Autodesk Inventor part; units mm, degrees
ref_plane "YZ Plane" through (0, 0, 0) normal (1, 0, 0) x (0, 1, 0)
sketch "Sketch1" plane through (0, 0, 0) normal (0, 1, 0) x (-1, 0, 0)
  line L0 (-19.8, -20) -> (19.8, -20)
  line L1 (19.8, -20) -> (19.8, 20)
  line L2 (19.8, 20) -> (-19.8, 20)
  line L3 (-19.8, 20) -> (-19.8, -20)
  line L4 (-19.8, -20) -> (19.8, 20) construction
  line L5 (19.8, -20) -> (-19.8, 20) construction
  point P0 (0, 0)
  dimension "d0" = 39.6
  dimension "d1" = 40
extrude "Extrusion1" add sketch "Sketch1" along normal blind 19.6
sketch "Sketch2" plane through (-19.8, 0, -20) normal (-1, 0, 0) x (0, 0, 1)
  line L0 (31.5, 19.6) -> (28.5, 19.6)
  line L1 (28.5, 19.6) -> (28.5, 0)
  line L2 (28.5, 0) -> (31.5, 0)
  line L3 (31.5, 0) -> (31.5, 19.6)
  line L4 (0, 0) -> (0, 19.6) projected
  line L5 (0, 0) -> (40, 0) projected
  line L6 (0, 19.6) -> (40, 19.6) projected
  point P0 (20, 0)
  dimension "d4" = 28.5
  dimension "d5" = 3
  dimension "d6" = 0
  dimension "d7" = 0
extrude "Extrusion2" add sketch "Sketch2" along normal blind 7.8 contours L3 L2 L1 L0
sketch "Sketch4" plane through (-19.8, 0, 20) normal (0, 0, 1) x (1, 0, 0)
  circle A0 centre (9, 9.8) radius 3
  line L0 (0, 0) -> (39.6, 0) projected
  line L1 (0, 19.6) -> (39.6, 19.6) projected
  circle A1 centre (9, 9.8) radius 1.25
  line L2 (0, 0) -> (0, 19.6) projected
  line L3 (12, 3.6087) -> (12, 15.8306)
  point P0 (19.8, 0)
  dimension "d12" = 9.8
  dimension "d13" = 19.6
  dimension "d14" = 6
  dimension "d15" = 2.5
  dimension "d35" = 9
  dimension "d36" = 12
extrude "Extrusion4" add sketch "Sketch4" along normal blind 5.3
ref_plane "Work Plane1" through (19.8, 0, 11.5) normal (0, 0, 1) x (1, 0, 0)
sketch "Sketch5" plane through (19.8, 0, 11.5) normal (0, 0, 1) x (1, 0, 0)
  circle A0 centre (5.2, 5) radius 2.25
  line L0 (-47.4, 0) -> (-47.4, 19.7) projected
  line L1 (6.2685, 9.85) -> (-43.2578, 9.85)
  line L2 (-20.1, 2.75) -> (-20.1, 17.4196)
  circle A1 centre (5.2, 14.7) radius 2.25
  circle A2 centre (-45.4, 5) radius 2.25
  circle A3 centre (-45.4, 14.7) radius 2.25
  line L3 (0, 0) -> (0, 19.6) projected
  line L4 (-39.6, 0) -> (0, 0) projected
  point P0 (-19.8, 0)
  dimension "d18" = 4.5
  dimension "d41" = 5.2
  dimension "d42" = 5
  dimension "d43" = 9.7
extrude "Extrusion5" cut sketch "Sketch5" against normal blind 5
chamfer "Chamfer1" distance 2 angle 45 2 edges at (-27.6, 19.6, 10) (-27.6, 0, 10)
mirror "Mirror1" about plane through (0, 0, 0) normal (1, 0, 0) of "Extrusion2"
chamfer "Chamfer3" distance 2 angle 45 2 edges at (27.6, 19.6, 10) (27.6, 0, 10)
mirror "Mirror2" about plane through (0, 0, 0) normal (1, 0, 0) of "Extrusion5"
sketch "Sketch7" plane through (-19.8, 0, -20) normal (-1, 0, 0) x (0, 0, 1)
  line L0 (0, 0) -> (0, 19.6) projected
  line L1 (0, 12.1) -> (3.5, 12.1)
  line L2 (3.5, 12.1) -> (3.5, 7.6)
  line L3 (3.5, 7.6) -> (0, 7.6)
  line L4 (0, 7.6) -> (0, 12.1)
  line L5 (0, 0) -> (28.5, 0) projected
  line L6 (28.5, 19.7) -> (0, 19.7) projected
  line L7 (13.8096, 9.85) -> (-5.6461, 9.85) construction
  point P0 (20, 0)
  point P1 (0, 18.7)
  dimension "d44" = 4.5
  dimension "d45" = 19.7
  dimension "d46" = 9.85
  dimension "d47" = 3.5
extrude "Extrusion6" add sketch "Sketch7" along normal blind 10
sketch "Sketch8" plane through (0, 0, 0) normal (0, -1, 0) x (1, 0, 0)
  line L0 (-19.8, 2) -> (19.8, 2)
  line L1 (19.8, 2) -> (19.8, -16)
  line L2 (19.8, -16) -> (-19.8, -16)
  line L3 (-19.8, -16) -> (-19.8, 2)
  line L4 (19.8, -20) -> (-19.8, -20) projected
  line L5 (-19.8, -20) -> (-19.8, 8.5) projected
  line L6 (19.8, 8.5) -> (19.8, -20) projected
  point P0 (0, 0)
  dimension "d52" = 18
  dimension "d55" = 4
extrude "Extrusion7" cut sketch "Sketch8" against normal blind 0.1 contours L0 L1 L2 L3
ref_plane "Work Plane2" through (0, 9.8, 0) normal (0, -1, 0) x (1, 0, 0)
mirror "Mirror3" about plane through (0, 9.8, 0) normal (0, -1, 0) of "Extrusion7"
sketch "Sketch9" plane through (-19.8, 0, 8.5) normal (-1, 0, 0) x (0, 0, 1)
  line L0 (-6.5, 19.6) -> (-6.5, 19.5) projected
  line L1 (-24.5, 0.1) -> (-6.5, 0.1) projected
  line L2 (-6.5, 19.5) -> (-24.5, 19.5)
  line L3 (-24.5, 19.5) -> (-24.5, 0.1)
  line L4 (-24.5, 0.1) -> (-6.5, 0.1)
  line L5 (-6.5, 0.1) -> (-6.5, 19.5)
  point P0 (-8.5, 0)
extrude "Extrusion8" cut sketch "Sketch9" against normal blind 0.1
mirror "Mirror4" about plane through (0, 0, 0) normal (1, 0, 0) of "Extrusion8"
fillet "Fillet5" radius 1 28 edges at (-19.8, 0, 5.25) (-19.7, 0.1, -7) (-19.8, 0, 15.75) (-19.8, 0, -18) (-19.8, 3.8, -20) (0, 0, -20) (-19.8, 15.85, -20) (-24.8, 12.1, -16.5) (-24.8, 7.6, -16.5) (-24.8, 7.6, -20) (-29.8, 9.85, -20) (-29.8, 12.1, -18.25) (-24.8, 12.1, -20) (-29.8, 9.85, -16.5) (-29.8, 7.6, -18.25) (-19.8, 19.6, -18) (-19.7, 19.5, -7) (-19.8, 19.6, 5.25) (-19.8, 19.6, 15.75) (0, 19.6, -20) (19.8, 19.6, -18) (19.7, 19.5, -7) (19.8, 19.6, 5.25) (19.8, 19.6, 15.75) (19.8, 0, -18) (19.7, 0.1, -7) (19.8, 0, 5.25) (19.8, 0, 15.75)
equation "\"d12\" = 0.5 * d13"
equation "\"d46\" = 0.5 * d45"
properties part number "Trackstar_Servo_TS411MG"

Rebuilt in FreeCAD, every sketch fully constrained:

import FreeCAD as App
import Part
import Sketcher
from FreeCAD import Vector
Q = App.Units.Quantity


def edges_at(feature, points):
    """Names of the edges that pass closest to the given points."""
    edges = feature.Shape.Edges
    near = lambda p: min(range(len(edges)), key=lambda i: edges[i].distToShape(Part.Vertex(*p))[0])
    return sorted({f"Edge{near(p) + 1}" for p in points})

doc = App.newDocument("Part")
params = doc.addObject("Spreadsheet::Sheet", "Params")
for row, (alias, value) in enumerate([
    ("sketch1_height", "40 mm"),
    ("sketch1_width", "39.6 mm"),
    ("pad1_length", "19.6 mm"),
    ("sketch2_height", "3 mm"),
    ("sketch2_width", "19.6 mm"),
    ("pad2_length", "7.8 mm"),
    ("sketch3_diameter", "6 mm"),
    ("sketch3_diameter2", "2.5 mm"),
    ("pad3_length", "5.3 mm"),
    ("sketch4_diameter", "4.5 mm"),
    ("pocket1_length", "5 mm"),
    ("chamfer_size", "2 mm"),
    ("chamfer2_size", "2 mm"),
    ("sketch5_width", "4.5 mm"),
    ("sketch5_height", "3.5 mm"),
    ("pad4_length", "10 mm"),
    ("sketch6_height", "18 mm"),
    ("sketch6_width", "39.6 mm"),
    ("pocket2_length", "0.1 mm"),
    ("sketch7_height", "18 mm"),
    ("sketch7_width", "19.4 mm"),
    ("pocket3_length", "0.1 mm"),
    ("fillet_radius", "1 mm"),
], start=1):
    params.set(f"A{row}", alias)
    params.set(f"B{row}", "=" + value)
    params.setAlias(f"B{row}", alias)

body = doc.addObject("PartDesign::Body", "Body")

# Sketch on XZ plane
sketch1 = body.newObject("Sketcher::SketchObject", "Sketch")
sketch1.AttachmentSupport = (doc.getObject("XZ_Plane"), [""])
sketch1.MapMode = "FlatFace"
sketch1.addGeometry([
    Part.LineSegment(Vector(20, 20, 0), Vector(20, -20, 0)),
    Part.LineSegment(Vector(20, -20, 0), Vector(-20, -20, 0)),
    Part.LineSegment(Vector(-20, -20, 0), Vector(-20, 20, 0)),
    Part.LineSegment(Vector(-20, 20, 0), Vector(20, 20, 0)),
], False)
sketch1.addConstraint([
    Sketcher.Constraint("Coincident", 0, 2, 1, 1),
    Sketcher.Constraint("Coincident", 1, 2, 2, 1),
    Sketcher.Constraint("Coincident", 2, 2, 3, 1),
    Sketcher.Constraint("Coincident", 3, 2, 0, 1),
    Sketcher.Constraint("Vertical", 0),
    Sketcher.Constraint("Horizontal", 1),
    Sketcher.Constraint("Vertical", 2),
    Sketcher.Constraint("Horizontal", 3),
    Sketcher.Constraint("Symmetric", 0, 2, 2, 2, -1, 1),
    Sketcher.Constraint("DistanceY", 0, 2, 0, 1, Q("40 mm")),
    Sketcher.Constraint("DistanceX", 1, 2, 1, 1, Q("39.6 mm")),
])
sketch1.setExpression("Constraints[9]", "Params.sketch1_height")
sketch1.setExpression("Constraints[10]", "Params.sketch1_width")
pad1 = body.newObject("PartDesign::Pad", "Pad")
pad1.Profile = sketch1
pad1.setExpression("Length", "Params.pad1_length")
pad1.Reversed = True

# Sketch on YZ plane
sketch2 = body.newObject("Sketcher::SketchObject", "Sketch001")
sketch2.AttachmentSupport = (doc.getObject("YZ_Plane"), [""])
sketch2.MapMode = "FlatFace"
sketch2.AttachmentOffset = App.Placement(Vector(0, 0, -19.8), App.Rotation())
sketch2.addGeometry([
    Part.LineSegment(Vector(0, 11.5, 0), Vector(19.6, 11.5, 0)),
    Part.LineSegment(Vector(19.6, 11.5, 0), Vector(19.6, 8.5, 0)),
    Part.LineSegment(Vector(19.6, 8.5, 0), Vector(0, 8.5, 0)),
    Part.LineSegment(Vector(0, 8.5, 0), Vector(0, 11.5, 0)),
], False)
sketch2.addConstraint([
    Sketcher.Constraint("Coincident", 0, 2, 1, 1),
    Sketcher.Constraint("Coincident", 1, 2, 2, 1),
    Sketcher.Constraint("Coincident", 2, 2, 3, 1),
    Sketcher.Constraint("Coincident", 3, 2, 0, 1),
    Sketcher.Constraint("Horizontal", 0),
    Sketcher.Constraint("Vertical", 1),
    Sketcher.Constraint("Horizontal", 2),
    Sketcher.Constraint("Vertical", 3),
    Sketcher.Constraint("PointOnObject", 2, 2, -2),
    Sketcher.Constraint("DistanceY", 1, 2, 1, 1, Q("3 mm")),
    Sketcher.Constraint("DistanceX", 0, 1, 0, 2, Q("19.6 mm")),
    Sketcher.Constraint("DistanceY", -1, 1, 0, 2, Q("11.5 mm")),
])
sketch2.setExpression("Constraints[9]", "Params.sketch2_height")
sketch2.setExpression("Constraints[10]", "Params.sketch2_width")
pad2 = body.newObject("PartDesign::Pad", "Pad001")
pad2.Profile = sketch2
pad2.setExpression("Length", "Params.pad2_length")
pad2.Reversed = True

# Sketch on XY plane
sketch3 = body.newObject("Sketcher::SketchObject", "Sketch002")
sketch3.AttachmentSupport = (doc.getObject("XY_Plane"), [""])
sketch3.MapMode = "FlatFace"
sketch3.AttachmentOffset = App.Placement(Vector(0, 0, 20), App.Rotation())
sketch3.addGeometry([
    Part.Circle(Vector(-10.8, 9.8, 0), Vector(0, 0, 1), 3),
    Part.Circle(Vector(-10.8, 9.8, 0), Vector(0, 0, 1), 1.2),
], False)
sketch3.addConstraint([
    Sketcher.Constraint("Coincident", 1, 3, 0, 3),
    Sketcher.Constraint("Diameter", 0, Q("6 mm")),
    Sketcher.Constraint("Diameter", 1, Q("2.5 mm")),
    Sketcher.Constraint("DistanceY", -1, 1, 0, 3, Q("9.8 mm")),
    Sketcher.Constraint("DistanceX", 0, 3, -1, 1, Q("10.8 mm")),
])
sketch3.setExpression("Constraints[1]", "Params.sketch3_diameter")
sketch3.setExpression("Constraints[2]", "Params.sketch3_diameter2")
pad3 = body.newObject("PartDesign::Pad", "Pad002")
pad3.Profile = sketch3
pad3.setExpression("Length", "Params.pad3_length")

# Sketch on XY plane
sketch4 = body.newObject("Sketcher::SketchObject", "Sketch003")
sketch4.AttachmentSupport = (doc.getObject("XY_Plane"), [""])
sketch4.MapMode = "FlatFace"
sketch4.AttachmentOffset = App.Placement(Vector(0, 0, 11.5), App.Rotation())
sketch4.addGeometry([
    Part.Circle(Vector(25, 5, 0), Vector(0, 0, 1), 2.2),
    Part.Circle(Vector(-25.6, 5, 0), Vector(0, 0, 1), 2.2),
    Part.Circle(Vector(-25.6, 14.7, 0), Vector(0, 0, 1), 2.2),
    Part.Circle(Vector(25, 14.7, 0), Vector(0, 0, 1), 2.2),
], False)
sketch4.addConstraint([
    Sketcher.Constraint("Equal", 0, 1),
    Sketcher.Constraint("Equal", 1, 2),
    Sketcher.Constraint("Equal", 2, 3),
    Sketcher.Constraint("Horizontal", 0, 3, 1, 3),
    Sketcher.Constraint("Horizontal", 2, 3, 3, 3),
    Sketcher.Constraint("Vertical", 1, 3, 2, 3),
    Sketcher.Constraint("Vertical", 0, 3, 3, 3),
    Sketcher.Constraint("Diameter", 0, Q("4.5 mm")),
    Sketcher.Constraint("DistanceY", -1, 1, 0, 3, Q("5 mm")),
    Sketcher.Constraint("DistanceY", 1, 3, 2, 3, Q("9.7 mm")),
    Sketcher.Constraint("DistanceX", -1, 1, 0, 3, Q("25 mm")),
    Sketcher.Constraint("DistanceX", 1, 3, -1, 1, Q("25.6 mm")),
])
sketch4.setExpression("Constraints[7]", "Params.sketch4_diameter")
pocket1 = body.newObject("PartDesign::Pocket", "Pocket")
pocket1.Profile = sketch4
pocket1.setExpression("Length", "Params.pocket1_length")
doc.recompute()

chamfer = body.newObject("PartDesign::Chamfer", "Chamfer")
chamfer.Base = (pocket1, edges_at(pocket1, [(-27.6, 19.6, 10), (-27.6, 0, 10)]))
chamfer.setExpression("Size", "Params.chamfer_size")
doc.recompute()

mirrored = body.newObject("PartDesign::Mirrored", "Mirrored")
mirrored.Originals = [pad2]
mirrored.MirrorPlane = (doc.getObject("YZ_Plane"), [""])
body.Tip = mirrored
doc.recompute()

chamfer2 = body.newObject("PartDesign::Chamfer", "Chamfer001")
chamfer2.Base = (mirrored, edges_at(mirrored, [(27.6, 19.6, 10), (27.6, 0, 10)]))
chamfer2.setExpression("Size", "Params.chamfer2_size")
doc.recompute()

mirrored2 = body.newObject("PartDesign::Mirrored", "Mirrored001")
mirrored2.Originals = [pocket1]
mirrored2.MirrorPlane = (doc.getObject("YZ_Plane"), [""])
body.Tip = mirrored2

# Sketch on YZ plane
sketch5 = body.newObject("Sketcher::SketchObject", "Sketch004")
sketch5.AttachmentSupport = (doc.getObject("YZ_Plane"), [""])
sketch5.MapMode = "FlatFace"
sketch5.AttachmentOffset = App.Placement(Vector(0, 0, -19.8), App.Rotation())
sketch5.addGeometry([
    Part.LineSegment(Vector(12.1, -20, 0), Vector(7.6, -20, 0)),
    Part.LineSegment(Vector(7.6, -20, 0), Vector(7.6, -16.5, 0)),
    Part.LineSegment(Vector(7.6, -16.5, 0), Vector(12.1, -16.5, 0)),
    Part.LineSegment(Vector(12.1, -16.5, 0), Vector(12.1, -20, 0)),
], False)
sketch5.addConstraint([
    Sketcher.Constraint("Coincident", 0, 2, 1, 1),
    Sketcher.Constraint("Coincident", 1, 2, 2, 1),
    Sketcher.Constraint("Coincident", 2, 2, 3, 1),
    Sketcher.Constraint("Coincident", 3, 2, 0, 1),
    Sketcher.Constraint("Horizontal", 0),
    Sketcher.Constraint("Vertical", 1),
    Sketcher.Constraint("Horizontal", 2),
    Sketcher.Constraint("Vertical", 3),
    Sketcher.Constraint("DistanceX", 0, 2, 0, 1, Q("4.5 mm")),
    Sketcher.Constraint("DistanceY", 1, 1, 1, 2, Q("3.5 mm")),
    Sketcher.Constraint("DistanceY", 0, 2, -1, 1, Q("20 mm")),
    Sketcher.Constraint("DistanceX", -1, 1, 0, 2, Q("7.6 mm")),
])
sketch5.setExpression("Constraints[8]", "Params.sketch5_width")
sketch5.setExpression("Constraints[9]", "Params.sketch5_height")
pad4 = body.newObject("PartDesign::Pad", "Pad003")
pad4.Profile = sketch5
pad4.setExpression("Length", "Params.pad4_length")
pad4.Reversed = True

# Sketch on XZ plane
sketch6 = body.newObject("Sketcher::SketchObject", "Sketch005")
sketch6.AttachmentSupport = (doc.getObject("XZ_Plane"), [""])
sketch6.MapMode = "FlatFace"
sketch6.addGeometry([
    Part.LineSegment(Vector(20, 2, 0), Vector(-20, 2, 0)),
    Part.LineSegment(Vector(-20, 2, 0), Vector(-20, -16, 0)),
    Part.LineSegment(Vector(-20, -16, 0), Vector(20, -16, 0)),
    Part.LineSegment(Vector(20, -16, 0), Vector(20, 2, 0)),
], False)
sketch6.addConstraint([
    Sketcher.Constraint("Coincident", 0, 2, 1, 1),
    Sketcher.Constraint("Coincident", 1, 2, 2, 1),
    Sketcher.Constraint("Coincident", 2, 2, 3, 1),
    Sketcher.Constraint("Coincident", 3, 2, 0, 1),
    Sketcher.Constraint("Horizontal", 0),
    Sketcher.Constraint("Vertical", 1),
    Sketcher.Constraint("Horizontal", 2),
    Sketcher.Constraint("Vertical", 3),
    Sketcher.Constraint("DistanceY", 1, 2, 1, 1, Q("18 mm")),
    Sketcher.Constraint("DistanceX", 0, 2, 0, 1, Q("39.6 mm")),
    Sketcher.Constraint("DistanceY", -1, 1, 0, 2, Q("2 mm")),
    Sketcher.Constraint("DistanceX", 0, 2, -1, 1, Q("19.8 mm")),
])
sketch6.setExpression("Constraints[8]", "Params.sketch6_height")
sketch6.setExpression("Constraints[9]", "Params.sketch6_width")
pocket2 = body.newObject("PartDesign::Pocket", "Pocket001")
pocket2.Profile = sketch6
pocket2.setExpression("Length", "Params.pocket2_length")
doc.recompute()

datumplane = body.newObject("PartDesign::Plane", "DatumPlane")
datumplane.AttachmentSupport = (doc.getObject("XZ_Plane"), [""])
datumplane.MapMode = "FlatFace"
datumplane.AttachmentOffset = App.Placement(Vector(0, 0, -9.8), App.Rotation())
mirrored3 = body.newObject("PartDesign::Mirrored", "Mirrored002")
mirrored3.Originals = [pocket2]
mirrored3.MirrorPlane = (datumplane, [""])
body.Tip = mirrored3

# Sketch on YZ plane
sketch7 = body.newObject("Sketcher::SketchObject", "Sketch006")
sketch7.AttachmentSupport = (doc.getObject("YZ_Plane"), [""])
sketch7.MapMode = "FlatFace"
sketch7.AttachmentOffset = App.Placement(Vector(0, 0, -19.8), App.Rotation())
sketch7.addGeometry([
    Part.LineSegment(Vector(20, -16, 0), Vector(0, -16, 0)),
    Part.LineSegment(Vector(0, -16, 0), Vector(0, 2, 0)),
    Part.LineSegment(Vector(0, 2, 0), Vector(20, 2, 0)),
    Part.LineSegment(Vector(20, 2, 0), Vector(20, -16, 0)),
], False)
sketch7.addConstraint([
    Sketcher.Constraint("Coincident", 0, 2, 1, 1),
    Sketcher.Constraint("Coincident", 1, 2, 2, 1),
    Sketcher.Constraint("Coincident", 2, 2, 3, 1),
    Sketcher.Constraint("Coincident", 3, 2, 0, 1),
    Sketcher.Constraint("Horizontal", 0),
    Sketcher.Constraint("Vertical", 1),
    Sketcher.Constraint("Horizontal", 2),
    Sketcher.Constraint("Vertical", 3),
    Sketcher.Constraint("DistanceY", 1, 1, 1, 2, Q("18 mm")),
    Sketcher.Constraint("DistanceX", 0, 2, 0, 1, Q("19.4 mm")),
    Sketcher.Constraint("DistanceY", 0, 2, -1, 1, Q("16 mm")),
    Sketcher.Constraint("DistanceX", -1, 1, 0, 2, Q("0.1 mm")),
])
sketch7.setExpression("Constraints[8]", "Params.sketch7_height")
sketch7.setExpression("Constraints[9]", "Params.sketch7_width")
pocket3 = body.newObject("PartDesign::Pocket", "Pocket002")
pocket3.Profile = sketch7
pocket3.setExpression("Length", "Params.pocket3_length")
pocket3.Reversed = True
doc.recompute()

mirrored4 = body.newObject("PartDesign::Mirrored", "Mirrored003")
mirrored4.Originals = [pocket3]
mirrored4.MirrorPlane = (doc.getObject("YZ_Plane"), [""])
body.Tip = mirrored4
doc.recompute()

fillet = body.newObject("PartDesign::Fillet", "Fillet")
fillet.Base = (mirrored4, edges_at(mirrored4, [
    (-19.8, 0, 5.25),
    (-19.7, 0.1, -7),
    (-19.8, 0, 15.75),
    (-19.8, 0, -18),
    (-19.8, 3.8, -20),
    (0, 0, -20),
    (-19.8, 15.85, -20),
    (-24.8, 12.1, -16.5),
    (-24.8, 7.6, -16.5),
    (-24.8, 7.6, -20),
    (-29.8, 9.85, -20),
    (-29.8, 12.1, -18.25),
    (-24.8, 12.1, -20),
    (-29.8, 9.85, -16.5),
    (-29.8, 7.6, -18.25),
    (-19.8, 19.6, -18),
    (-19.7, 19.5, -7),
    (-19.8, 19.6, 5.25),
    (-19.8, 19.6, 15.75),
    (0, 19.6, -20),
    (19.8, 19.6, -18),
    (19.7, 19.5, -7),
    (19.8, 19.6, 5.25),
    (19.8, 19.6, 15.75),
    (19.8, 0, -18),
    (19.7, 0.1, -7),
    (19.8, 0, 5.25),
    (19.8, 0, 15.75),
]))
fillet.setExpression("Radius", "Params.fillet_radius")

doc.recompute()
